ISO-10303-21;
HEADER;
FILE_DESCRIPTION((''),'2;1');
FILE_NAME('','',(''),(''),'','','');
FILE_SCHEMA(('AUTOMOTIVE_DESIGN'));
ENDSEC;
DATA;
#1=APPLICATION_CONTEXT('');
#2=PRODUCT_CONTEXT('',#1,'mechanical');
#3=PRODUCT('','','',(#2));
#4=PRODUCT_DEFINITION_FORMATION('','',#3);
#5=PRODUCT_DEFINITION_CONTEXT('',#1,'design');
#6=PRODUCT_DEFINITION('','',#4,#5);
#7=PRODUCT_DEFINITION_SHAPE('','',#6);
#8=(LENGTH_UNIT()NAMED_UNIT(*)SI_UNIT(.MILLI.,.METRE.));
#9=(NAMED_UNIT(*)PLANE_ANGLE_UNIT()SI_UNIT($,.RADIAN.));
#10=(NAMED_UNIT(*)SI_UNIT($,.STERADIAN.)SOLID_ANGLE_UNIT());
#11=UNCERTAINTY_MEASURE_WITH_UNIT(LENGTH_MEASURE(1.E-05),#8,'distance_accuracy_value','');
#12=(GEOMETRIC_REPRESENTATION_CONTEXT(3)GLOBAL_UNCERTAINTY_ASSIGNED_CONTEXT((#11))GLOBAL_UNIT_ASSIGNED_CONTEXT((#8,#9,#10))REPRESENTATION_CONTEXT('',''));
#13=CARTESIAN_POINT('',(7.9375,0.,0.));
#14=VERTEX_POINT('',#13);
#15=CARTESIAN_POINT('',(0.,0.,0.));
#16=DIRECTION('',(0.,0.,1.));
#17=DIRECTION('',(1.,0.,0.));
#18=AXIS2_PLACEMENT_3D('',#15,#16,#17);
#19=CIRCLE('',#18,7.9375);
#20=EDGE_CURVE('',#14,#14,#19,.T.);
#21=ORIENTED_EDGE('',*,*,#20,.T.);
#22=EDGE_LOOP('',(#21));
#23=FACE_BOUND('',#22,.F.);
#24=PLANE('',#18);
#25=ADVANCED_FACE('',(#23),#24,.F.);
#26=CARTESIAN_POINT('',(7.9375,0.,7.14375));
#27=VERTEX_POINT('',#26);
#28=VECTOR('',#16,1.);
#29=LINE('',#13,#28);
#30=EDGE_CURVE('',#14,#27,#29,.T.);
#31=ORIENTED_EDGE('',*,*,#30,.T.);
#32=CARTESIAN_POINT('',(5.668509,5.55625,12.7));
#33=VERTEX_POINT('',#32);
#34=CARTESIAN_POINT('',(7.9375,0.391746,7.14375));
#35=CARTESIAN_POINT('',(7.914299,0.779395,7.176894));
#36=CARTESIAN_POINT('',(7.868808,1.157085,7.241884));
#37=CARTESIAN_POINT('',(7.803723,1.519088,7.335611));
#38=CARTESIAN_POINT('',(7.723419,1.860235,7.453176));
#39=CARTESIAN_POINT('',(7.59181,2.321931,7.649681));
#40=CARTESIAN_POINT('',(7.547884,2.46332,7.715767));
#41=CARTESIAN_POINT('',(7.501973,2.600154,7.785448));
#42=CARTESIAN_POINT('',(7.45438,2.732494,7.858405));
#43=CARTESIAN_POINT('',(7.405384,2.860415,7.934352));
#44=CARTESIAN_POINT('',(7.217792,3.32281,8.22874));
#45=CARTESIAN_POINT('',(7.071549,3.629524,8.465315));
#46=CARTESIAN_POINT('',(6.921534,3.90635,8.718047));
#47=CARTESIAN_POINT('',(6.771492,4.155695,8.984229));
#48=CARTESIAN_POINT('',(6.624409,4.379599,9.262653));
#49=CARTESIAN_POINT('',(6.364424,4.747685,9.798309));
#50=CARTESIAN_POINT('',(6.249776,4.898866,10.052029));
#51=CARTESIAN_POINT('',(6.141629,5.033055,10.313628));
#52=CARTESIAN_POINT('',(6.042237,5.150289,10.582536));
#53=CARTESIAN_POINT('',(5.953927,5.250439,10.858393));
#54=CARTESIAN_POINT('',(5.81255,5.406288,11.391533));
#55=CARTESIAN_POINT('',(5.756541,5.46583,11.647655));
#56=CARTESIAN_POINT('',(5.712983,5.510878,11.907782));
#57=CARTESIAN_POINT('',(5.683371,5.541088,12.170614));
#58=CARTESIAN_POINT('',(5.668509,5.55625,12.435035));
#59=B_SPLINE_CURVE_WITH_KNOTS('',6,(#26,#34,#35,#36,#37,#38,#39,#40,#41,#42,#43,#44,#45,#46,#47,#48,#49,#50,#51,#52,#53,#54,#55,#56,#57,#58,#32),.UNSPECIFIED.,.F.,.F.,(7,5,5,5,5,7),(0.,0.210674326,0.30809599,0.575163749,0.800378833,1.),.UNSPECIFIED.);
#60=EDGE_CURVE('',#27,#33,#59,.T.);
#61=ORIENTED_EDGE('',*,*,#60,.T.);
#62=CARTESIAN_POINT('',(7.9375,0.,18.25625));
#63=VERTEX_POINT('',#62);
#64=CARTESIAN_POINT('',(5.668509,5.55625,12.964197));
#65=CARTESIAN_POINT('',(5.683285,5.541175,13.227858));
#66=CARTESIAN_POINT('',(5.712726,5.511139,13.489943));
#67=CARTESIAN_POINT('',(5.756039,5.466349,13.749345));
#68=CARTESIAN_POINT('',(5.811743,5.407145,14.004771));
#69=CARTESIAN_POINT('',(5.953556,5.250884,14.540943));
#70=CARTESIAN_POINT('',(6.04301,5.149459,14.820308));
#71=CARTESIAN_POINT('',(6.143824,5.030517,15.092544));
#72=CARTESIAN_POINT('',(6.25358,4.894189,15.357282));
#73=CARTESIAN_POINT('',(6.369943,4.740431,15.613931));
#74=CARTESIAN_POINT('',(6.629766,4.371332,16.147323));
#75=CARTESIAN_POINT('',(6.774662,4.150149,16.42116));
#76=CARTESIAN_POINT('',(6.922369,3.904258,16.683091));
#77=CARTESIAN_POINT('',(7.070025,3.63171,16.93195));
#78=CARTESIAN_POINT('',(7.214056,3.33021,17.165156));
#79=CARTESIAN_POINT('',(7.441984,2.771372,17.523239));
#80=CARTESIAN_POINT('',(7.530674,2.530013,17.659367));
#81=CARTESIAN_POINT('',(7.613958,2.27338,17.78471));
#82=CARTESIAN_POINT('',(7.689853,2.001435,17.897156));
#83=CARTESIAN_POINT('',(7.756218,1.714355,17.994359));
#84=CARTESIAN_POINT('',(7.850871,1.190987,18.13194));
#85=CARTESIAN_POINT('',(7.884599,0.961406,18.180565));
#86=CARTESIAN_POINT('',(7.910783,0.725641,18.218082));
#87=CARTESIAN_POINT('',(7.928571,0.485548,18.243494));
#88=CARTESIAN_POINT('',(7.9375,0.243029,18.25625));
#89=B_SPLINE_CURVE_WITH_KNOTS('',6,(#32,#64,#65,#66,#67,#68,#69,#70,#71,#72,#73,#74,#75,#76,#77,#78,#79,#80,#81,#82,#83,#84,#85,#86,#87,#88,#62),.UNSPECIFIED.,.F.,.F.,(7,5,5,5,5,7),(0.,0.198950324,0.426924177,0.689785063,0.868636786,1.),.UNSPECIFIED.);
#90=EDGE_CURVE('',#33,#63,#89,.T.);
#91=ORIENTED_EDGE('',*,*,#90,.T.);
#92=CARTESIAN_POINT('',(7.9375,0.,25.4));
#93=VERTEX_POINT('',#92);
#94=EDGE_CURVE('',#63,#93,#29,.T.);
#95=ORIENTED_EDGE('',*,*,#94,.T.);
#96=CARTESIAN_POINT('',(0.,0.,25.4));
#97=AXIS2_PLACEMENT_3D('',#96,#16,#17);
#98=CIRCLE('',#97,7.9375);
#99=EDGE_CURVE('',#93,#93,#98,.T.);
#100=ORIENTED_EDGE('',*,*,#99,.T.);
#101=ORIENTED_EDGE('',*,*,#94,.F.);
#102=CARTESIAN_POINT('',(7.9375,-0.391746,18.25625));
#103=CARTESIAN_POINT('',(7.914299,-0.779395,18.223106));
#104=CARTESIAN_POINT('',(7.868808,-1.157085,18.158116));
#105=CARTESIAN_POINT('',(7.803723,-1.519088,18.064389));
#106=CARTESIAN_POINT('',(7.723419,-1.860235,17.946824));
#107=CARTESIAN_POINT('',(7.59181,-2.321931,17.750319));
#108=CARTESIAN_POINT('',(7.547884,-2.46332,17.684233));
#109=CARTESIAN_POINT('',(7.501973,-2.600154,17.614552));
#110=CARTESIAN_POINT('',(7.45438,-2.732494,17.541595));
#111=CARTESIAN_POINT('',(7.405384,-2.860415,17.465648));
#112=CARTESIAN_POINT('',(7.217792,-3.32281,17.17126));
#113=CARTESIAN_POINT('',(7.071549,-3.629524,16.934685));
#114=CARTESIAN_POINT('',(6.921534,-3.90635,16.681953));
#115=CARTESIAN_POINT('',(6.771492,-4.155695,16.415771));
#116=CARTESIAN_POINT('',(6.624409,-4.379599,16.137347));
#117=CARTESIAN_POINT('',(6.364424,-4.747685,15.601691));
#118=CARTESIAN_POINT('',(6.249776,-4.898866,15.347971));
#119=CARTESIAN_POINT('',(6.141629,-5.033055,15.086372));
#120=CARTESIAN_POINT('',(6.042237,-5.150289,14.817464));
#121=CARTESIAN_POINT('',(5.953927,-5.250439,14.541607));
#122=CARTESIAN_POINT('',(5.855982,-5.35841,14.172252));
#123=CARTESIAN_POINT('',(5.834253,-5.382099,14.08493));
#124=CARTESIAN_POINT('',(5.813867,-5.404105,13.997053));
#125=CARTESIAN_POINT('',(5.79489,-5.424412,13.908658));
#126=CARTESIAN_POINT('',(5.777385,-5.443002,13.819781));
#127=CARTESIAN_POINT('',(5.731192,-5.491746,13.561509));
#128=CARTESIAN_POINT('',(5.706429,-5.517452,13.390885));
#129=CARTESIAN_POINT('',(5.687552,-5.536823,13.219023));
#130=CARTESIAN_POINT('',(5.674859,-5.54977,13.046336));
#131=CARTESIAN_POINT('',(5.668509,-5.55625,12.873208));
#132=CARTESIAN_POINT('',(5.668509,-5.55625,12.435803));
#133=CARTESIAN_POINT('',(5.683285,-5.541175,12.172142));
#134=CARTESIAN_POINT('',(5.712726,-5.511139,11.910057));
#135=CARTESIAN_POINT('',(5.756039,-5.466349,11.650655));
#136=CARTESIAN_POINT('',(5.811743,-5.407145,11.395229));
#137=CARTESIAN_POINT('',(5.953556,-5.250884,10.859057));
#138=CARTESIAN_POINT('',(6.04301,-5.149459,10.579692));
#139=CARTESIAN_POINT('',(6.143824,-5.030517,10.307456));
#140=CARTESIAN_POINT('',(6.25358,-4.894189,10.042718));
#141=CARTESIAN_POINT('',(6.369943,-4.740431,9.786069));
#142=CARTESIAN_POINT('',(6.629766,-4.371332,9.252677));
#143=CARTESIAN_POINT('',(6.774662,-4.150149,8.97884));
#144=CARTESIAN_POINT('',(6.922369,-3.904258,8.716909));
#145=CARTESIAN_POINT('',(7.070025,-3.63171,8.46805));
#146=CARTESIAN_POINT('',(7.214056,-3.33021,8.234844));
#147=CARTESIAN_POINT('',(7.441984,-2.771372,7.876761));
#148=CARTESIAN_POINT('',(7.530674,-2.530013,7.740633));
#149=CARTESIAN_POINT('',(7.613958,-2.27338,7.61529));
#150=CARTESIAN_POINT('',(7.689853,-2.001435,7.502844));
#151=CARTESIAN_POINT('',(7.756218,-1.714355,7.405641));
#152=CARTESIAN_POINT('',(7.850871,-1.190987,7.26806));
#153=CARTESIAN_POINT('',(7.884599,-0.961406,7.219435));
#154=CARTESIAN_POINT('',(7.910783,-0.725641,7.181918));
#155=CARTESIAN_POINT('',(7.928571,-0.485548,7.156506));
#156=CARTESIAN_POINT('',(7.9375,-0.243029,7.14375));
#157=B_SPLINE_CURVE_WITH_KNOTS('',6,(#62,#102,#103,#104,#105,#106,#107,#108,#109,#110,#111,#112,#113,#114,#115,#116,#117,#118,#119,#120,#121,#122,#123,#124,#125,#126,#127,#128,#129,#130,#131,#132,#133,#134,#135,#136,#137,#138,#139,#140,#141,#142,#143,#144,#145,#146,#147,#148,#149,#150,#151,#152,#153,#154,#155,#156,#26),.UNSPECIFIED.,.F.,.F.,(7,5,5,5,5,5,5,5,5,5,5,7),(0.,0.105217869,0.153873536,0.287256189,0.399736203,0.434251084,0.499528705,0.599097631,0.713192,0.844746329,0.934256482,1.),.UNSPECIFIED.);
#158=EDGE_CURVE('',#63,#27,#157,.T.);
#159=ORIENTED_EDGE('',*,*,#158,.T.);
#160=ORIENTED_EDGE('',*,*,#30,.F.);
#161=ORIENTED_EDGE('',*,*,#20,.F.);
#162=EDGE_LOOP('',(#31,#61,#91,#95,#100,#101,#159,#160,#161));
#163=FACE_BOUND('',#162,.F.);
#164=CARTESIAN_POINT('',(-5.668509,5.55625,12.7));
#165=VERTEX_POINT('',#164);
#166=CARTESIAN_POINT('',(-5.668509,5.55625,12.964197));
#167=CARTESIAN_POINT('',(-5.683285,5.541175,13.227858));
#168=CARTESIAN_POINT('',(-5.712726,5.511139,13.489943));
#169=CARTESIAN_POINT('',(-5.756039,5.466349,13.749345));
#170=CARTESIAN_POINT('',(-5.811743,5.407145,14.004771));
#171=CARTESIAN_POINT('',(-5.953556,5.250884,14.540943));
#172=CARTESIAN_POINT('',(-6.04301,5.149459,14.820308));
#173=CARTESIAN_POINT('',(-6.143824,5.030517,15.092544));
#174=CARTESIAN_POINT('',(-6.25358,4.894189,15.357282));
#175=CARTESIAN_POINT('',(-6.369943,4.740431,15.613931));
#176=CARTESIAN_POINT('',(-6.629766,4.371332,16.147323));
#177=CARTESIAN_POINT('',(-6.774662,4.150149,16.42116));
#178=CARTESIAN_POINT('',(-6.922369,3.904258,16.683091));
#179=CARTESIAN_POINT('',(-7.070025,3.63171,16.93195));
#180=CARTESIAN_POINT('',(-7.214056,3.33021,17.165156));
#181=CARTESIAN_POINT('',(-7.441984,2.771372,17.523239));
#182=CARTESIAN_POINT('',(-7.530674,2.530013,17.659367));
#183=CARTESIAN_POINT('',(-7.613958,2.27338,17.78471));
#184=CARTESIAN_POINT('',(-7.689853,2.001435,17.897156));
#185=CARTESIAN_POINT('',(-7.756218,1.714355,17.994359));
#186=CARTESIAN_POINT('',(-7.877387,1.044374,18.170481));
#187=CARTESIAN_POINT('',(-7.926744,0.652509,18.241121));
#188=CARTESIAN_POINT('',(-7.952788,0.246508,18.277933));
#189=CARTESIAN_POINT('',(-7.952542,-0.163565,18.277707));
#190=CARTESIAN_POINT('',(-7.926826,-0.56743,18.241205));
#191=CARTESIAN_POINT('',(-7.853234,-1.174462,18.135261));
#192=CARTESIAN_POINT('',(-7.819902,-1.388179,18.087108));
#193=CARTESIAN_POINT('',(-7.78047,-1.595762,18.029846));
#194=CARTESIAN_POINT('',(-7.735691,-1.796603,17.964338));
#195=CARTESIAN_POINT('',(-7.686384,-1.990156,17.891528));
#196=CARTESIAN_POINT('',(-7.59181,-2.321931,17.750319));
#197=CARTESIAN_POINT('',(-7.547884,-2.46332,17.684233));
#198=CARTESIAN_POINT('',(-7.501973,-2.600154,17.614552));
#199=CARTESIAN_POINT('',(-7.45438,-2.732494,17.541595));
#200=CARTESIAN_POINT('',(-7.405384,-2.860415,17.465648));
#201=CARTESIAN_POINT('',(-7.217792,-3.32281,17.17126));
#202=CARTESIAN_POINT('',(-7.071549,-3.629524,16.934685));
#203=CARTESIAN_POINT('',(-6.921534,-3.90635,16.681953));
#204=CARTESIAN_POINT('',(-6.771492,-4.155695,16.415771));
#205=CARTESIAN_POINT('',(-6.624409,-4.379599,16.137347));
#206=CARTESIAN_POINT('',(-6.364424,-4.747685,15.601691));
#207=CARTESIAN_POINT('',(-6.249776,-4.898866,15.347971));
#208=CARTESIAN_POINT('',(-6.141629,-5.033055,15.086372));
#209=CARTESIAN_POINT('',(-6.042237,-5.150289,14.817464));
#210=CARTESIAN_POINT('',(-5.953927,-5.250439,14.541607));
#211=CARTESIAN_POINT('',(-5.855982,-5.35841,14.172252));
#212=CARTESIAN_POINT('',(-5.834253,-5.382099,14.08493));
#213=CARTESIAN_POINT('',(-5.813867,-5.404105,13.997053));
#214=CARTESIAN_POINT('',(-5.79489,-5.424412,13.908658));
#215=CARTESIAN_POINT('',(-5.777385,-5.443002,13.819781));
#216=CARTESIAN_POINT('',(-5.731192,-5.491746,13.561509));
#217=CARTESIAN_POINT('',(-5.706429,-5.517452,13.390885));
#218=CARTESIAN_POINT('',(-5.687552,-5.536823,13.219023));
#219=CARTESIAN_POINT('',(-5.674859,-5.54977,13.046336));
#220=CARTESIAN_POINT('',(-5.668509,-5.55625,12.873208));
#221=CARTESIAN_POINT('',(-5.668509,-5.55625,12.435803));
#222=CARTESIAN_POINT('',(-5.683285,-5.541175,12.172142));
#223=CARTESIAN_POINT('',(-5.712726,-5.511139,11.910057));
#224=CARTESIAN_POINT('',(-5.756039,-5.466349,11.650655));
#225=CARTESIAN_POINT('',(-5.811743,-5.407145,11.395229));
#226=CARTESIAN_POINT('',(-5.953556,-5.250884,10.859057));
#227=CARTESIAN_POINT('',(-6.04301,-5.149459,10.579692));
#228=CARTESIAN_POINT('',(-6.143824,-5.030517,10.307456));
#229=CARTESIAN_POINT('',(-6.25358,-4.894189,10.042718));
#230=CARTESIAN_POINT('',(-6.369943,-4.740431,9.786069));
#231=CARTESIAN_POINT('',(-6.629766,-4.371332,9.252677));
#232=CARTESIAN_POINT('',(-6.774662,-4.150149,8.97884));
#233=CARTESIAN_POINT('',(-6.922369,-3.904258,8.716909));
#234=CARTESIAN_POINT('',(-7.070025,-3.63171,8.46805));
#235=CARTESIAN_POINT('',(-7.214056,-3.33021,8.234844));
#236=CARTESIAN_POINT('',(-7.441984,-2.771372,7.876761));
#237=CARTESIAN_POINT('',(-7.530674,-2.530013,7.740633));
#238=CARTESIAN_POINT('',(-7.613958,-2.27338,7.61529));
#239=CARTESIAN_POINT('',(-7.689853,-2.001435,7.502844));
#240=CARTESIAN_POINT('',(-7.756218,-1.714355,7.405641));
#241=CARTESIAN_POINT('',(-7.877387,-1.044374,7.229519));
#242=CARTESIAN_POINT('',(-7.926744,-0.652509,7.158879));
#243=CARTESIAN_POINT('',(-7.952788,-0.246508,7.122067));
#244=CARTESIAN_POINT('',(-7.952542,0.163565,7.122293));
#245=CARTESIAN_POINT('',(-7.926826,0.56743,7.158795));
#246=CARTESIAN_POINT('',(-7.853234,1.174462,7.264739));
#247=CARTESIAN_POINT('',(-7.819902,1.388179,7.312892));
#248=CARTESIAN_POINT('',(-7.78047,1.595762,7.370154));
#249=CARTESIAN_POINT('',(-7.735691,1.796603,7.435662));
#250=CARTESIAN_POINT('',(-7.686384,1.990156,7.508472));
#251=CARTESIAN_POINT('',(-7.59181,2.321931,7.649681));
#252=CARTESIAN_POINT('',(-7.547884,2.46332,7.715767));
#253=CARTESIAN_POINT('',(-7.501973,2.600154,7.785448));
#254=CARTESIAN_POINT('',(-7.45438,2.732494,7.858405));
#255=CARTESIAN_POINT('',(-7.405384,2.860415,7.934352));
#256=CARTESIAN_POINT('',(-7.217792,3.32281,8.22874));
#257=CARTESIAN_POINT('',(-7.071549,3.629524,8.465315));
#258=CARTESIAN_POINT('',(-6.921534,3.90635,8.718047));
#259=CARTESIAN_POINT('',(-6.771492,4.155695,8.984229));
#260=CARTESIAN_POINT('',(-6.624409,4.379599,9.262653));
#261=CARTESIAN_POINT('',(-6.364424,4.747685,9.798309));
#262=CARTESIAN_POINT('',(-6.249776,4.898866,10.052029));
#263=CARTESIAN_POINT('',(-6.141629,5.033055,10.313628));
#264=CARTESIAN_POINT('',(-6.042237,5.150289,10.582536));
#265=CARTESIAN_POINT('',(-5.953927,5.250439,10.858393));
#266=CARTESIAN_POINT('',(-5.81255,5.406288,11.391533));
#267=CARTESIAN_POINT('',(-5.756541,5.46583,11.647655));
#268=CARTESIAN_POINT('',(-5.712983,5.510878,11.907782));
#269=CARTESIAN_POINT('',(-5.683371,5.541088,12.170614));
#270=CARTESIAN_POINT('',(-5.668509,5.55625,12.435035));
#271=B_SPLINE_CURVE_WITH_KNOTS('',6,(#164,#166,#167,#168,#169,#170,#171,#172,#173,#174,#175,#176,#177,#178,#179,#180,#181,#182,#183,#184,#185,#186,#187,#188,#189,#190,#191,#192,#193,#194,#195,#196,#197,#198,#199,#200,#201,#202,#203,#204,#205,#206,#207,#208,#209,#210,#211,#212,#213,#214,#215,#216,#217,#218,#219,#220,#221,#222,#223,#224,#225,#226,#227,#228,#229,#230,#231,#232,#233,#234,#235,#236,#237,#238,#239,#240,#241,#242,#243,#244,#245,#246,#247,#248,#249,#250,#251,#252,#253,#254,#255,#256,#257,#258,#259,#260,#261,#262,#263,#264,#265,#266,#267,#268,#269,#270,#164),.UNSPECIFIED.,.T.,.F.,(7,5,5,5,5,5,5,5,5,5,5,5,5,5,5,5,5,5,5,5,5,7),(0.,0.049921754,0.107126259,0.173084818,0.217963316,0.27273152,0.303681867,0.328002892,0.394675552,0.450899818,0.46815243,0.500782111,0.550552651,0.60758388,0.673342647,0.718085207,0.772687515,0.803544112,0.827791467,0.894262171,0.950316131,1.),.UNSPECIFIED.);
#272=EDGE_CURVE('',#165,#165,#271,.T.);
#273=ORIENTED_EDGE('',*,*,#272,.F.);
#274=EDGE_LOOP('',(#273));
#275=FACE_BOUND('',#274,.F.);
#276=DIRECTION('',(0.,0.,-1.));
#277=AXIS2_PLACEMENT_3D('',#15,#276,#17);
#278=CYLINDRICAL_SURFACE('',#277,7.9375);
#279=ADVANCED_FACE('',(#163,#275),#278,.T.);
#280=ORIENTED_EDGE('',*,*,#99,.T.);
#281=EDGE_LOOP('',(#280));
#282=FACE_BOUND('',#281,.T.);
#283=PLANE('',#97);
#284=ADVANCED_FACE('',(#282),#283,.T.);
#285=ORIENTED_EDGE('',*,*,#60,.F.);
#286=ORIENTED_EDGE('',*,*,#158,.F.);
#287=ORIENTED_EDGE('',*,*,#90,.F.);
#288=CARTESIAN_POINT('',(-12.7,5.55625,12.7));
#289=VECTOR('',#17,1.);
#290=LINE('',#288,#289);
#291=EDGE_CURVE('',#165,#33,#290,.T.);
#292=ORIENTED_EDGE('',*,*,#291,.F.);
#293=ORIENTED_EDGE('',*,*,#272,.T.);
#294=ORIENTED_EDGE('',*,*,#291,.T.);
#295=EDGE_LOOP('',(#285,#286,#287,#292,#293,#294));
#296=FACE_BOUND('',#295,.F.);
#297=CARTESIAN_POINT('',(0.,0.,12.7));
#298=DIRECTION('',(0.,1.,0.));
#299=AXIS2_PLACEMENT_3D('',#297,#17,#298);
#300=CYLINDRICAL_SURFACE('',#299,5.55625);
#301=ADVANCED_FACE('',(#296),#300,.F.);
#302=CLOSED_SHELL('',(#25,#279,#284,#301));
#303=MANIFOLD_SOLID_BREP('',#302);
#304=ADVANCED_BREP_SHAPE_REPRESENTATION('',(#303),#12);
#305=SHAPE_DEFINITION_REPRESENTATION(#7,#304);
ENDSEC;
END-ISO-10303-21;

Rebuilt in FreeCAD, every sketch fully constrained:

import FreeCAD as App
import Part
import Sketcher
Q = App.Units.Quantity

doc = App.newDocument("Part")
params = doc.addObject("Spreadsheet::Sheet", "Params")
for row, (alias, value) in enumerate([
    ("sketch1_diameter", "0.625 in"),
    ("pad1_length", "1 in"),
    ("sketch2_diameter", "0.4375 in"),
    ("pocket1_length", "1 in"),
], start=1):
    params.set(f"A{row}", alias)
    params.set(f"B{row}", "=" + value)
    params.setAlias(f"B{row}", alias)

body = doc.addObject("PartDesign::Body", "Body")

# Sketch on XY plane
sketch1 = body.newObject("Sketcher::SketchObject", "Sketch")
sketch1.AttachmentSupport = (doc.getObject("XY_Plane"), [""])
sketch1.MapMode = "FlatFace"
sketch1.addGeometry(Part.Circle(App.Vector(0, 0, 0), App.Vector(0, 0, 1), 8), False)
sketch1.addConstraint([
    Sketcher.Constraint("Coincident", 0, 3, -1, 1),
    Sketcher.Constraint("Diameter", 0, Q("0.625 in")),
])
sketch1.setExpression("Constraints[1]", "Params.sketch1_diameter")
pad1 = body.newObject("PartDesign::Pad", "Pad")
pad1.Profile = sketch1
pad1.setExpression("Length", "Params.pad1_length")

# Sketch on YZ plane
sketch2 = body.newObject("Sketcher::SketchObject", "Sketch001")
sketch2.AttachmentSupport = (doc.getObject("YZ_Plane"), [""])
sketch2.MapMode = "FlatFace"
sketch2.addGeometry(Part.Circle(App.Vector(0, 13, 0), App.Vector(0, 0, 1), 6), False)
sketch2.addConstraint([
    Sketcher.Constraint("PointOnObject", 0, 3, -2),
    Sketcher.Constraint("Diameter", 0, Q("0.4375 in")),
    Sketcher.Constraint("DistanceY", -1, 1, 0, 3, Q("0.5 in")),
])
sketch2.setExpression("Constraints[1]", "Params.sketch2_diameter")
pocket1 = body.newObject("PartDesign::Pocket", "Pocket")
pocket1.Profile = sketch2
pocket1.setExpression("Length", "Params.pocket1_length")
pocket1.Midplane = True

doc.recompute()
